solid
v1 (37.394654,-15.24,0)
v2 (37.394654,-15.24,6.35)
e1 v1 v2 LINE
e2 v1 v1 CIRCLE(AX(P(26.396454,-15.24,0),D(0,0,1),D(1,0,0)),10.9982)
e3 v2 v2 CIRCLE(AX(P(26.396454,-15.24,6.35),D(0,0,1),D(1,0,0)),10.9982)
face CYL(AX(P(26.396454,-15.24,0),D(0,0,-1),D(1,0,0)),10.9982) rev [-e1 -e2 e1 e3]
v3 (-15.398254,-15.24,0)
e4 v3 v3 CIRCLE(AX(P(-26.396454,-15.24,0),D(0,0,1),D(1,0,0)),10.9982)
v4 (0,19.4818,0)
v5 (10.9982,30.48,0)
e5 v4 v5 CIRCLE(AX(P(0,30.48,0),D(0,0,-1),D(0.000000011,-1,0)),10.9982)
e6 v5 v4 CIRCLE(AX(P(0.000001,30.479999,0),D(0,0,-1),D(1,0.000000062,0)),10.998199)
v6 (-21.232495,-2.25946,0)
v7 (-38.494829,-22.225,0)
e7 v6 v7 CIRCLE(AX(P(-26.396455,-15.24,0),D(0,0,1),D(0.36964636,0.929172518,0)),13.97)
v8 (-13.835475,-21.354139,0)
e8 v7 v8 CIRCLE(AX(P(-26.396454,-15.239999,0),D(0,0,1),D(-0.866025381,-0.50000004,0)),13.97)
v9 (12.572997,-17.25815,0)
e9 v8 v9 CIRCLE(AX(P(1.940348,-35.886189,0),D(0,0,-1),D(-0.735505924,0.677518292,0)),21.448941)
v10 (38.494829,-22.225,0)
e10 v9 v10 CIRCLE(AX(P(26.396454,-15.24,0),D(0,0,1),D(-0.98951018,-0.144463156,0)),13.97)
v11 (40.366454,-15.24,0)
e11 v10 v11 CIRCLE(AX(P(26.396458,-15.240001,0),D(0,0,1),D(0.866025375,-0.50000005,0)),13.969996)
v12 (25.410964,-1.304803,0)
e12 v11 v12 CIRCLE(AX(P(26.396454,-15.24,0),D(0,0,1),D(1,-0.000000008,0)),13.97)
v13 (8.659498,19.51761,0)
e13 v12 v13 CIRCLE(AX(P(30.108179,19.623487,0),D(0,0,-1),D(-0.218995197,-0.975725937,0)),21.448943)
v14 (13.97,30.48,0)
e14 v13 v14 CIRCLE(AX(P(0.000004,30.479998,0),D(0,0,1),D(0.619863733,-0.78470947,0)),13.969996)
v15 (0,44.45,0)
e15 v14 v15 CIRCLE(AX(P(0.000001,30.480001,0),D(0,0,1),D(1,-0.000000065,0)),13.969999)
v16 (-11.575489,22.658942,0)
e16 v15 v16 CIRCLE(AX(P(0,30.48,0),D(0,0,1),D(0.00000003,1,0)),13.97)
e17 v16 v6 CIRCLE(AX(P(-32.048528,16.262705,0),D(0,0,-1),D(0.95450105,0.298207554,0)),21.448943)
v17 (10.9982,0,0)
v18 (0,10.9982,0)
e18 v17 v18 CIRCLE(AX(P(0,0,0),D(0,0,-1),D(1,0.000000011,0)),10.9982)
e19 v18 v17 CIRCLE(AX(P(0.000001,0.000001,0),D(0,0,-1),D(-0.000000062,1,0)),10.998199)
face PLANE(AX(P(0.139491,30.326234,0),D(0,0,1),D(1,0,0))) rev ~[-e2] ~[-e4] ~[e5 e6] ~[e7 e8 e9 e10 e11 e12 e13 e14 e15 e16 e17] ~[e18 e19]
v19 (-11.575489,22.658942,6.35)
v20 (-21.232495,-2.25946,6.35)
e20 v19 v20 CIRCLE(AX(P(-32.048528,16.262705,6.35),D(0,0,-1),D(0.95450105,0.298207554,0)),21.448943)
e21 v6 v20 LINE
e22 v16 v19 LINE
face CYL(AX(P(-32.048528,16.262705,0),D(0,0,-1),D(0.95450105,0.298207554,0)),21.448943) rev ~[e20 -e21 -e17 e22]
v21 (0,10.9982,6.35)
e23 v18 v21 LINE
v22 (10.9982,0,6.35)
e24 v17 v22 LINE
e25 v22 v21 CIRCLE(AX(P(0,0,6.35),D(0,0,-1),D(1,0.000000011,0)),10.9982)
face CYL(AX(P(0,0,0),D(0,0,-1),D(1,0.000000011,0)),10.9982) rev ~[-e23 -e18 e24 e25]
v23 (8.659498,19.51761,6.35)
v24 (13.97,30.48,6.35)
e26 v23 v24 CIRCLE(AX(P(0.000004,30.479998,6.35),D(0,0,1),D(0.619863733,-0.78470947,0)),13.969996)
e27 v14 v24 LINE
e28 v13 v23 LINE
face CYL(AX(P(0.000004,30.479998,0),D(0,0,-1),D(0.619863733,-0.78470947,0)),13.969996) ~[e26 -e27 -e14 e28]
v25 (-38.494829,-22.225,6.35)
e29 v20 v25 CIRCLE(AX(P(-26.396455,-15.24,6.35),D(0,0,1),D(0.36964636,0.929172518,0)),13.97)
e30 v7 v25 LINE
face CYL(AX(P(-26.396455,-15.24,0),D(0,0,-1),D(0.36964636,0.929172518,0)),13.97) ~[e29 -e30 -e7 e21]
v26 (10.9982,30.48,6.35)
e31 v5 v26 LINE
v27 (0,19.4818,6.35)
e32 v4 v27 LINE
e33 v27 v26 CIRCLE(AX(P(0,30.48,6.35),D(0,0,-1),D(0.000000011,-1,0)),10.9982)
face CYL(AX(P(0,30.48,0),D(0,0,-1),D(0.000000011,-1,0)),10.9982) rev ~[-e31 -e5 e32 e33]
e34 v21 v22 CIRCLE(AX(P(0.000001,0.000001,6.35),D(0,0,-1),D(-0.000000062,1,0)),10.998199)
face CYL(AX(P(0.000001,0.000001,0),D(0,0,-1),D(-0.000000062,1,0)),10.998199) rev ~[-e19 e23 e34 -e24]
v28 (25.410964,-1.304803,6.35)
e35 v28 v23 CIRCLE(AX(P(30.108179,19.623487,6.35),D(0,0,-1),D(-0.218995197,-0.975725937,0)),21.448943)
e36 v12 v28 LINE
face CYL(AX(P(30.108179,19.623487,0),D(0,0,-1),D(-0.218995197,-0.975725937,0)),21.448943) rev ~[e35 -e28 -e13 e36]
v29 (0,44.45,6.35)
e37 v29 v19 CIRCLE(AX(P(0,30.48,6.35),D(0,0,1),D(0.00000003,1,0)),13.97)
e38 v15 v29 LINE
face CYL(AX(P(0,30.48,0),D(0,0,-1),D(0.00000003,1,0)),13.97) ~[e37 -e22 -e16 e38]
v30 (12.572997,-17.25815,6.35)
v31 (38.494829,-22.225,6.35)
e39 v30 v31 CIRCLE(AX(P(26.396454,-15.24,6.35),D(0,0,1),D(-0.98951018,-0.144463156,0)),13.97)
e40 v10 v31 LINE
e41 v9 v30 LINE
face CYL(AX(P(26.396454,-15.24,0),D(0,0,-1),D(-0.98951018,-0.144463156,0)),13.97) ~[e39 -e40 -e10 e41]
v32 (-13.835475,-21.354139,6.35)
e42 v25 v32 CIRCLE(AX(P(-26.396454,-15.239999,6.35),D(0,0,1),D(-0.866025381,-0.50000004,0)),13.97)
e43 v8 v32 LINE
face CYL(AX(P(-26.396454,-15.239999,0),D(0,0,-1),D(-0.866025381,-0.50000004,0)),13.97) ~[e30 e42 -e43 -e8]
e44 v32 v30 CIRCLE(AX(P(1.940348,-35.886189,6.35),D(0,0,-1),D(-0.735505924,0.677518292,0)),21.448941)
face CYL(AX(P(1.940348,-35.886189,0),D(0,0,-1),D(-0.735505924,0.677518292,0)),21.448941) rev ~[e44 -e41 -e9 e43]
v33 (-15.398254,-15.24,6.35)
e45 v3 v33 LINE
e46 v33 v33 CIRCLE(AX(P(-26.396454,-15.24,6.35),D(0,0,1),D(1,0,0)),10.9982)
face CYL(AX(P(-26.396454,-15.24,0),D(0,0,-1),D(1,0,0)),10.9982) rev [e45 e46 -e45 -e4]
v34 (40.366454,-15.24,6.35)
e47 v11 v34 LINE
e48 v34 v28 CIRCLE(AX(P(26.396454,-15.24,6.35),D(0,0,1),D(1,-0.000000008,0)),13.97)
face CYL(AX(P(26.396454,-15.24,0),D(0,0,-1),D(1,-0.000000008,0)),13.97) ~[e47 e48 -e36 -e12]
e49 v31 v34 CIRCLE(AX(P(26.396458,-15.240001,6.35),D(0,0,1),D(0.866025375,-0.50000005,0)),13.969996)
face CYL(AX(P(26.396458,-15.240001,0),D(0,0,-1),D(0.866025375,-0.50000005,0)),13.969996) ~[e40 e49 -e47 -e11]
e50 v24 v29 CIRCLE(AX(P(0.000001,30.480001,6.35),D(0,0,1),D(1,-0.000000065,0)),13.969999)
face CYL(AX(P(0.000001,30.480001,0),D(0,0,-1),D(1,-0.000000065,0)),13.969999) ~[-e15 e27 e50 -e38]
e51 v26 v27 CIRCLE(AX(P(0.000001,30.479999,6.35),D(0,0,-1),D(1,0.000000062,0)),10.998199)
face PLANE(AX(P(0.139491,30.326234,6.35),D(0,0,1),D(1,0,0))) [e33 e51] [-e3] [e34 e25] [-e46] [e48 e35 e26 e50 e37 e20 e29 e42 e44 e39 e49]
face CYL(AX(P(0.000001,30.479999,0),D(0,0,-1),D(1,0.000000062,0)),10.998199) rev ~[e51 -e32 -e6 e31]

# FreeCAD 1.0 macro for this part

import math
import FreeCAD as App
import Part
import Sketcher
Q = App.Units.Quantity

doc = App.newDocument("Part")
body = doc.addObject("PartDesign::Body", "Body")

# Sketch on XY plane
sketch1 = body.newObject("Sketcher::SketchObject", "Sketch")
sketch1.AttachmentSupport = (doc.getObject("XY_Plane"), [""])
sketch1.MapMode = "FlatFace"
sketch1.addGeometry([
    Part.ArcOfCircle(Part.Circle(App.Vector(0, 30, 0), App.Vector(0, 0, 1), 14), math.radians(0), math.radians(90)),  # 0
    Part.ArcOfCircle(Part.Circle(App.Vector(0, 30, 0), App.Vector(0, 0, 1), 14), math.radians(90), math.radians(214)),  # 1
    Part.ArcOfCircle(Part.Circle(App.Vector(-32, 16, 0), App.Vector(0, 0, 1), 21), math.radians(-60), math.radians(17)),  # 2
    Part.ArcOfCircle(Part.Circle(App.Vector(-26, -15, 0), App.Vector(0, 0, 1), 14), math.radians(68), math.radians(210)),  # 3
    Part.ArcOfCircle(Part.Circle(App.Vector(-26, -15, 0), App.Vector(0, 0, 1), 14), math.radians(-150), math.radians(-26)),  # 4
    Part.ArcOfCircle(Part.Circle(App.Vector(2, -36, 0), App.Vector(0, 0, 1), 21), math.radians(60), math.radians(137)),  # 5
    Part.ArcOfCircle(Part.Circle(App.Vector(26, -15, 0), App.Vector(0, 0, 1), 14), math.radians(-172), math.radians(-30)),  # 6
    Part.ArcOfCircle(Part.Circle(App.Vector(26, -15, 0), App.Vector(0, 0, 1), 14), math.radians(-30), math.radians(0)),  # 7
    Part.ArcOfCircle(Part.Circle(App.Vector(26, -15, 0), App.Vector(0, 0, 1), 14), math.radians(0), math.radians(94)),  # 8
    Part.ArcOfCircle(Part.Circle(App.Vector(30, 20, 0), App.Vector(0, 0, 1), 21), math.radians(-180), math.radians(-103)),  # 9
    Part.ArcOfCircle(Part.Circle(App.Vector(0, 30, 0), App.Vector(0, 0, 1), 14), math.radians(-52), math.radians(0)),  # 10
    Part.Circle(App.Vector(-26, -15, 0), App.Vector(0, 0, 1), 11),  # 11
    Part.ArcOfCircle(Part.Circle(App.Vector(0, 0, 0), App.Vector(0, 0, 1), 11), math.radians(0), math.radians(90)),  # 12
    Part.ArcOfCircle(Part.Circle(App.Vector(0, 0, 0), App.Vector(0, 0, 1), 11), math.radians(90), math.radians(360)),  # 13
    Part.Circle(App.Vector(26, -15, 0), App.Vector(0, 0, 1), 11),  # 14
    Part.ArcOfCircle(Part.Circle(App.Vector(0, 30, 0), App.Vector(0, 0, 1), 11), math.radians(0), math.radians(270)),  # 15
    Part.ArcOfCircle(Part.Circle(App.Vector(0, 30, 0), App.Vector(0, 0, 1), 11), math.radians(-90), math.radians(0)),  # 16
], False)
sketch1.addConstraint([
    Sketcher.Constraint("Tangent", 0, 2, 1, 1),
    Sketcher.Constraint("Coincident", 1, 2, 2, 2),
    Sketcher.Constraint("Coincident", 2, 1, 3, 1),
    Sketcher.Constraint("Tangent", 3, 2, 4, 1),
    Sketcher.Constraint("Coincident", 4, 2, 5, 2),
    Sketcher.Constraint("Coincident", 5, 1, 6, 1),
    Sketcher.Constraint("Tangent", 6, 2, 7, 1),
    Sketcher.Constraint("Tangent", 7, 2, 8, 1),
    Sketcher.Constraint("Coincident", 8, 2, 9, 2),
    Sketcher.Constraint("Coincident", 9, 1, 10, 1),
    Sketcher.Constraint("Tangent", 10, 2, 0, 1),
    Sketcher.Constraint("Tangent", 12, 1, 13, 2),
    Sketcher.Constraint("Coincident", 13, 1, 12, 2),
    Sketcher.Constraint("Tangent", 15, 1, 16, 2),
    Sketcher.Constraint("Coincident", 16, 1, 15, 2),
    Sketcher.Constraint("Coincident", 12, 3, -1, 1),
    Sketcher.Constraint("Coincident", 8, 3, 6, 3),
    Sketcher.Constraint("Coincident", 11, 3, 3, 3),
    Sketcher.Constraint("Coincident", 14, 3, 6, 3),
    Sketcher.Constraint("Coincident", 15, 3, 0, 3),
    Sketcher.Constraint("Equal", 0, 1),
    Sketcher.Constraint("Equal", 1, 3),
    Sketcher.Constraint("Equal", 3, 4),
    Sketcher.Constraint("Equal", 4, 6),
    Sketcher.Constraint("Equal", 2, 9),
    Sketcher.Constraint("Equal", 7, 10),
    Sketcher.Constraint("Equal", 11, 12),
    Sketcher.Constraint("Equal", 13, 14),
    Sketcher.Constraint("Equal", 14, 15),
    Sketcher.Constraint("Symmetric", 3, 3, 6, 3, -2),
    Sketcher.Constraint("PointOnObject", 0, 3, -2),
    Sketcher.Constraint("PointOnObject", 0, 2, -2),
    Sketcher.Constraint("PointOnObject", 12, 1, -1),
    Sketcher.Constraint("PointOnObject", 13, 1, -2),
    Sketcher.Constraint("PointOnObject", 16, 1, -2),
    Sketcher.Constraint("Horizontal", 3, 2, 6, 2),
    Sketcher.Constraint("Horizontal", 14, 3, 7, 2),
    Sketcher.Constraint("Horizontal", 16, 3, 10, 2),
    Sketcher.Constraint("Horizontal", 10, 2, 15, 1),
    Sketcher.Constraint("Radius", 0, Q("0.55 in")),
    Sketcher.Constraint("Diameter", 11, Q("0.866 in")),
    Sketcher.Constraint("DistanceY", -1, 1, 0, 3, Q("1.2 in")),
    Sketcher.Constraint("DistanceY", 3, 3, -1, 1, Q("0.6 in")),
    Sketcher.Constraint("DistanceY", 3, 2, -1, 1, Q("0.875 in")),
    Sketcher.Constraint("DistanceX", -1, 1, 5, 1, Q("0.4949999 in")),
    Sketcher.Constraint("Radius", 5, 21.448941),
    Sketcher.Constraint("Radius", 2, 21.448943),
    Sketcher.Constraint("DistanceX", -1, 1, 9, 1, 8.659498),
    Sketcher.Constraint("DistanceX", 11, 3, 5, 3, 28.336802),
    Sketcher.Constraint("DistanceX", 3, 2, 2, 3, 6.446301),
    Sketcher.Constraint("DistanceY", 7, 3, 8, 2, 13.935198),
    Sketcher.Constraint("DistanceY", 5, 3, -1, 1, 35.886189),
    Sketcher.Constraint("DistanceX", 1, 2, -1, 1, 11.575489),
])
pad1 = body.newObject("PartDesign::Pad", "Pad")
pad1.Profile = sketch1
pad1.Length = Q("0.25 in")

doc.recompute()
